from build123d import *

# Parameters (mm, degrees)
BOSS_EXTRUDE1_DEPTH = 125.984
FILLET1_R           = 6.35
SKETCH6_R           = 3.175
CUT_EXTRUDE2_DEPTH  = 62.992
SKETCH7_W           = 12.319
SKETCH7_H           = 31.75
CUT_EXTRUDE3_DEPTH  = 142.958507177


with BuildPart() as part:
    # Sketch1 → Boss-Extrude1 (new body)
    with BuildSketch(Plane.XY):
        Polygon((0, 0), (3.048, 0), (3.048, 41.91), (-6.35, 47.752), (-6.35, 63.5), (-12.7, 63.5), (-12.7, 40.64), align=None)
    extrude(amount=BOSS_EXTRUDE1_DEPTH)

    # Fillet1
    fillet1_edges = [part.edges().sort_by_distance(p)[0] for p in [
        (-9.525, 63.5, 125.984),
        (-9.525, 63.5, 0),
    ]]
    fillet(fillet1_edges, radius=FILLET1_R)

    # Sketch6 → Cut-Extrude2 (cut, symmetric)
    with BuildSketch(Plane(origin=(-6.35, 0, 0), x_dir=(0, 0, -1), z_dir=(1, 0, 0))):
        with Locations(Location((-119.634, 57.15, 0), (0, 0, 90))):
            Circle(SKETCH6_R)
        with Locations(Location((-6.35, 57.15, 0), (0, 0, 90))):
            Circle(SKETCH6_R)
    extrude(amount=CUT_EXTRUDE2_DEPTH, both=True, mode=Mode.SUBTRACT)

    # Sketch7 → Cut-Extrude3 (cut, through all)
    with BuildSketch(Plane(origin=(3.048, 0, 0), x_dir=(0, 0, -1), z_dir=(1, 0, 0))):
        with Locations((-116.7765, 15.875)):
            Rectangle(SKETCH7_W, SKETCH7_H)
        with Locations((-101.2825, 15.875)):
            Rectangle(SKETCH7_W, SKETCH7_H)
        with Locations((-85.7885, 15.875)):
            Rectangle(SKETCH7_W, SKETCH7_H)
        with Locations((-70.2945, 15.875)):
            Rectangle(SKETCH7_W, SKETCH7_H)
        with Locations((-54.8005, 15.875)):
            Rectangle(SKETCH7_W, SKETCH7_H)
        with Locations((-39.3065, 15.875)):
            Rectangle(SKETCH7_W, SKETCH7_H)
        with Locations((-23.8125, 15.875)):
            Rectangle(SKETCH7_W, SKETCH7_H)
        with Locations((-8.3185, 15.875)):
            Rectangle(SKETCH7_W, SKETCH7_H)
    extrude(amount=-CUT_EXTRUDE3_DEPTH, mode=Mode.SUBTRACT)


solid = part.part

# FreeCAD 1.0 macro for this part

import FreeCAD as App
import Part
import Sketcher
from FreeCAD import Vector
Q = App.Units.Quantity


def edges_at(feature, points):
    """Names of the edges that pass closest to the given points."""
    edges = feature.Shape.Edges
    near = lambda p: min(range(len(edges)), key=lambda i: edges[i].distToShape(Part.Vertex(*p))[0])
    return sorted({f"Edge{near(p) + 1}" for p in points})


def add_polygon(sketch, points):
    """Adds a closed chain of lines whose ends are joined by coincident constraints."""
    first, n = sketch.GeometryCount, len(points)
    for a, b in zip(points, points[1:] + points[:1]):
        sketch.addGeometry(Part.LineSegment(App.Vector(*a, 0), App.Vector(*b, 0)), False)
    for i in range(n):
        sketch.addConstraint(Sketcher.Constraint("Coincident", first + i, 2, first + (i + 1) % n, 1))

doc = App.newDocument("Part")
body = doc.addObject("PartDesign::Body", "Body")

# Sketch on XY plane
sketch1 = doc.addObject("Sketcher::SketchObject", "Sketch")
body.addObject(sketch1)
sketch1.AttachmentSupport = (doc.XY_Plane, [""])
sketch1.MapMode = "FlatFace"
add_polygon(sketch1, [(0, 0), (3.048, 0), (3.048, 41.91), (-6.35, 47.752), (-6.35, 63.5), (-12.7, 63.5), (-12.7, 40.64)])  # lines 0-6
sketch1.addConstraint([
    Sketcher.Constraint("Horizontal", 0),
    Sketcher.Constraint("Vertical", 1),
    Sketcher.Constraint("Vertical", 3),
    Sketcher.Constraint("Horizontal", 4),
    Sketcher.Constraint("Vertical", 5),
    Sketcher.Constraint("Coincident", 6, 2, -1, 1),
    Sketcher.Constraint("DistanceY", 5, 2, 5, 1, Q("0.9 in")),
    Sketcher.Constraint("DistanceX", 0, 1, 0, 2, Q("0.12 in")),
    Sketcher.Constraint("DistanceX", 4, 2, 4, 1, Q("0.25 in")),
    Sketcher.Constraint("DistanceY", 1, 1, 1, 2, Q("1.65 in")),
    Sketcher.Constraint("DistanceY", 3, 1, 3, 2, Q("0.62 in")),
    Sketcher.Constraint("DistanceY", -1, 1, 3, 2, Q("2.5 in")),
    Sketcher.Constraint("DistanceX", 4, 2, -1, 1, Q("0.5 in")),
])
pad1 = doc.addObject("PartDesign::Pad", "Pad")
body.addObject(pad1)
pad1.Profile = sketch1
pad1.Length = Q("4.96 in")
doc.recompute()

fillet = doc.addObject("PartDesign::Fillet", "Fillet")
body.addObject(fillet)
fillet.Base = (pad1, edges_at(pad1, [(-9.525, 63.5, 125.984), (-9.525, 63.5, 0)]))
fillet.Radius = Q("0.25 in")

# Sketch on YZ plane
sketch2 = doc.addObject("Sketcher::SketchObject", "Sketch001")
body.addObject(sketch2)
sketch2.AttachmentSupport = (doc.YZ_Plane, [""])
sketch2.MapMode = "FlatFace"
sketch2.AttachmentOffset = App.Placement(Vector(0, 0, -0.25 * 25.4), App.Rotation())
sketch2.addGeometry([
    Part.Circle(Vector(57.15, 119.634, 0), Vector(0, 0, 1), 3.175),
    Part.Circle(Vector(57.15, 6.35, 0), Vector(0, 0, 1), 3.175),
], False)
sketch2.addConstraint([
    Sketcher.Constraint("Equal", 0, 1),
    Sketcher.Constraint("Vertical", 0, 3, 1, 3),
    Sketcher.Constraint("Diameter", 0, Q("0.25 in")),
    Sketcher.Constraint("DistanceX", -1, 1, 0, 3, Q("2.25 in")),
    Sketcher.Constraint("DistanceY", -1, 1, 0, 3, Q("4.71 in")),
    Sketcher.Constraint("DistanceY", -1, 1, 1, 3, Q("0.25 in")),
])
pocket1 = doc.addObject("PartDesign::Pocket", "Pocket")
body.addObject(pocket1)
pocket1.Profile = sketch2
pocket1.Length = Q("4.96 in")
pocket1.Midplane = True

# Sketch on YZ plane
sketch3 = doc.addObject("Sketcher::SketchObject", "Sketch002")
body.addObject(sketch3)
sketch3.AttachmentSupport = (doc.YZ_Plane, [""])
sketch3.MapMode = "FlatFace"
sketch3.AttachmentOffset = App.Placement(Vector(0, 0, 0.12 * 25.4), App.Rotation())
add_polygon(sketch3, [(31.75, 122.936), (0, 122.936), (0, 110.617), (31.75, 110.617)])  # lines 0-3
add_polygon(sketch3, [(31.75, 107.442), (0, 107.442), (0, 95.123), (31.75, 95.123)])  # lines 4-7
add_polygon(sketch3, [(31.75, 91.948), (0, 91.948), (0, 79.629), (31.75, 79.629)])  # lines 8-11
add_polygon(sketch3, [(31.75, 76.454), (0, 76.454), (0, 64.135), (31.75, 64.135)])  # lines 12-15
add_polygon(sketch3, [(31.75, 60.96), (0, 60.96), (0, 48.641), (31.75, 48.641)])  # lines 16-19
add_polygon(sketch3, [(31.75, 45.466), (0, 45.466), (0, 33.147), (31.75, 33.147)])  # lines 20-23
add_polygon(sketch3, [(31.75, 29.972), (0, 29.972), (0, 17.653), (31.75, 17.653)])  # lines 24-27
add_polygon(sketch3, [(31.75, 14.478), (0, 14.478), (0, 2.159), (31.75, 2.159)])  # lines 28-31
sketch3.addConstraint([
    Sketcher.Constraint("Horizontal", 0),
    Sketcher.Constraint("Vertical", 1),
    Sketcher.Constraint("Horizontal", 2),
    Sketcher.Constraint("Vertical", 3),
    Sketcher.Constraint("Horizontal", 4),
    Sketcher.Constraint("Vertical", 5),
    Sketcher.Constraint("Horizontal", 6),
    Sketcher.Constraint("Vertical", 7),
    Sketcher.Constraint("Horizontal", 8),
    Sketcher.Constraint("Vertical", 9),
    Sketcher.Constraint("Horizontal", 10),
    Sketcher.Constraint("Vertical", 11),
    Sketcher.Constraint("Horizontal", 12),
    Sketcher.Constraint("Vertical", 13),
    Sketcher.Constraint("Horizontal", 14),
    Sketcher.Constraint("Vertical", 15),
    Sketcher.Constraint("Horizontal", 16),
    Sketcher.Constraint("Vertical", 17),
    Sketcher.Constraint("Horizontal", 18),
    Sketcher.Constraint("Vertical", 19),
    Sketcher.Constraint("Horizontal", 20),
    Sketcher.Constraint("Vertical", 21),
    Sketcher.Constraint("Horizontal", 22),
    Sketcher.Constraint("Vertical", 23),
    Sketcher.Constraint("Horizontal", 24),
    Sketcher.Constraint("Vertical", 25),
    Sketcher.Constraint("Horizontal", 26),
    Sketcher.Constraint("Vertical", 27),
    Sketcher.Constraint("Horizontal", 28),
    Sketcher.Constraint("Vertical", 29),
    Sketcher.Constraint("Horizontal", 30),
    Sketcher.Constraint("Vertical", 31),
    Sketcher.Constraint("PointOnObject", 0, 2, -2),
    Sketcher.Constraint("PointOnObject", 4, 2, -2),
    Sketcher.Constraint("PointOnObject", 8, 2, -2),
    Sketcher.Constraint("PointOnObject", 12, 2, -2),
    Sketcher.Constraint("PointOnObject", 16, 2, -2),
    Sketcher.Constraint("PointOnObject", 20, 2, -2),
    Sketcher.Constraint("PointOnObject", 24, 2, -2),
    Sketcher.Constraint("PointOnObject", 28, 2, -2),
    Sketcher.Constraint("Vertical", 3, 2, 6, 2),
    Sketcher.Constraint("Vertical", 7, 2, 10, 2),
    Sketcher.Constraint("Vertical", 11, 2, 14, 2),
    Sketcher.Constraint("Vertical", 15, 2, 18, 2),
    Sketcher.Constraint("Vertical", 19, 2, 22, 2),
    Sketcher.Constraint("Vertical", 23, 2, 26, 2),
    Sketcher.Constraint("Vertical", 27, 2, 30, 2),
    Sketcher.Constraint("Equal", 3, 5),
    Sketcher.Constraint("Equal", 7, 9),
    Sketcher.Constraint("Equal", 11, 13),
    Sketcher.Constraint("Equal", 15, 17),
    Sketcher.Constraint("Equal", 19, 21),
    Sketcher.Constraint("Equal", 23, 25),
    Sketcher.Constraint("Equal", 27, 29),
    Sketcher.Constraint("DistanceX", 0, 2, 0, 1, Q("1.25 in")),
    Sketcher.Constraint("DistanceY", -1, 1, 16, 2, Q("2.4 in")),
    Sketcher.Constraint("DistanceY", 1, 2, 1, 1, Q("0.485 in")),
    Sketcher.Constraint("DistanceY", -1, 1, 0, 2, Q("4.84 in")),
    Sketcher.Constraint("DistanceY", -1, 1, 4, 2, Q("4.23 in")),
    Sketcher.Constraint("DistanceY", -1, 1, 8, 2, Q("3.62 in")),
    Sketcher.Constraint("DistanceY", -1, 1, 12, 2, Q("3.01 in")),
    Sketcher.Constraint("DistanceY", -1, 1, 20, 2, Q("1.79 in")),
    Sketcher.Constraint("DistanceY", -1, 1, 24, 2, Q("1.18 in")),
    Sketcher.Constraint("DistanceY", -1, 1, 28, 2, Q("0.57 in")),
])
pocket2 = doc.addObject("PartDesign::Pocket", "Pocket001")
body.addObject(pocket2)
pocket2.Profile = sketch3
pocket2.Type = "ThroughAll"

doc.recompute()
